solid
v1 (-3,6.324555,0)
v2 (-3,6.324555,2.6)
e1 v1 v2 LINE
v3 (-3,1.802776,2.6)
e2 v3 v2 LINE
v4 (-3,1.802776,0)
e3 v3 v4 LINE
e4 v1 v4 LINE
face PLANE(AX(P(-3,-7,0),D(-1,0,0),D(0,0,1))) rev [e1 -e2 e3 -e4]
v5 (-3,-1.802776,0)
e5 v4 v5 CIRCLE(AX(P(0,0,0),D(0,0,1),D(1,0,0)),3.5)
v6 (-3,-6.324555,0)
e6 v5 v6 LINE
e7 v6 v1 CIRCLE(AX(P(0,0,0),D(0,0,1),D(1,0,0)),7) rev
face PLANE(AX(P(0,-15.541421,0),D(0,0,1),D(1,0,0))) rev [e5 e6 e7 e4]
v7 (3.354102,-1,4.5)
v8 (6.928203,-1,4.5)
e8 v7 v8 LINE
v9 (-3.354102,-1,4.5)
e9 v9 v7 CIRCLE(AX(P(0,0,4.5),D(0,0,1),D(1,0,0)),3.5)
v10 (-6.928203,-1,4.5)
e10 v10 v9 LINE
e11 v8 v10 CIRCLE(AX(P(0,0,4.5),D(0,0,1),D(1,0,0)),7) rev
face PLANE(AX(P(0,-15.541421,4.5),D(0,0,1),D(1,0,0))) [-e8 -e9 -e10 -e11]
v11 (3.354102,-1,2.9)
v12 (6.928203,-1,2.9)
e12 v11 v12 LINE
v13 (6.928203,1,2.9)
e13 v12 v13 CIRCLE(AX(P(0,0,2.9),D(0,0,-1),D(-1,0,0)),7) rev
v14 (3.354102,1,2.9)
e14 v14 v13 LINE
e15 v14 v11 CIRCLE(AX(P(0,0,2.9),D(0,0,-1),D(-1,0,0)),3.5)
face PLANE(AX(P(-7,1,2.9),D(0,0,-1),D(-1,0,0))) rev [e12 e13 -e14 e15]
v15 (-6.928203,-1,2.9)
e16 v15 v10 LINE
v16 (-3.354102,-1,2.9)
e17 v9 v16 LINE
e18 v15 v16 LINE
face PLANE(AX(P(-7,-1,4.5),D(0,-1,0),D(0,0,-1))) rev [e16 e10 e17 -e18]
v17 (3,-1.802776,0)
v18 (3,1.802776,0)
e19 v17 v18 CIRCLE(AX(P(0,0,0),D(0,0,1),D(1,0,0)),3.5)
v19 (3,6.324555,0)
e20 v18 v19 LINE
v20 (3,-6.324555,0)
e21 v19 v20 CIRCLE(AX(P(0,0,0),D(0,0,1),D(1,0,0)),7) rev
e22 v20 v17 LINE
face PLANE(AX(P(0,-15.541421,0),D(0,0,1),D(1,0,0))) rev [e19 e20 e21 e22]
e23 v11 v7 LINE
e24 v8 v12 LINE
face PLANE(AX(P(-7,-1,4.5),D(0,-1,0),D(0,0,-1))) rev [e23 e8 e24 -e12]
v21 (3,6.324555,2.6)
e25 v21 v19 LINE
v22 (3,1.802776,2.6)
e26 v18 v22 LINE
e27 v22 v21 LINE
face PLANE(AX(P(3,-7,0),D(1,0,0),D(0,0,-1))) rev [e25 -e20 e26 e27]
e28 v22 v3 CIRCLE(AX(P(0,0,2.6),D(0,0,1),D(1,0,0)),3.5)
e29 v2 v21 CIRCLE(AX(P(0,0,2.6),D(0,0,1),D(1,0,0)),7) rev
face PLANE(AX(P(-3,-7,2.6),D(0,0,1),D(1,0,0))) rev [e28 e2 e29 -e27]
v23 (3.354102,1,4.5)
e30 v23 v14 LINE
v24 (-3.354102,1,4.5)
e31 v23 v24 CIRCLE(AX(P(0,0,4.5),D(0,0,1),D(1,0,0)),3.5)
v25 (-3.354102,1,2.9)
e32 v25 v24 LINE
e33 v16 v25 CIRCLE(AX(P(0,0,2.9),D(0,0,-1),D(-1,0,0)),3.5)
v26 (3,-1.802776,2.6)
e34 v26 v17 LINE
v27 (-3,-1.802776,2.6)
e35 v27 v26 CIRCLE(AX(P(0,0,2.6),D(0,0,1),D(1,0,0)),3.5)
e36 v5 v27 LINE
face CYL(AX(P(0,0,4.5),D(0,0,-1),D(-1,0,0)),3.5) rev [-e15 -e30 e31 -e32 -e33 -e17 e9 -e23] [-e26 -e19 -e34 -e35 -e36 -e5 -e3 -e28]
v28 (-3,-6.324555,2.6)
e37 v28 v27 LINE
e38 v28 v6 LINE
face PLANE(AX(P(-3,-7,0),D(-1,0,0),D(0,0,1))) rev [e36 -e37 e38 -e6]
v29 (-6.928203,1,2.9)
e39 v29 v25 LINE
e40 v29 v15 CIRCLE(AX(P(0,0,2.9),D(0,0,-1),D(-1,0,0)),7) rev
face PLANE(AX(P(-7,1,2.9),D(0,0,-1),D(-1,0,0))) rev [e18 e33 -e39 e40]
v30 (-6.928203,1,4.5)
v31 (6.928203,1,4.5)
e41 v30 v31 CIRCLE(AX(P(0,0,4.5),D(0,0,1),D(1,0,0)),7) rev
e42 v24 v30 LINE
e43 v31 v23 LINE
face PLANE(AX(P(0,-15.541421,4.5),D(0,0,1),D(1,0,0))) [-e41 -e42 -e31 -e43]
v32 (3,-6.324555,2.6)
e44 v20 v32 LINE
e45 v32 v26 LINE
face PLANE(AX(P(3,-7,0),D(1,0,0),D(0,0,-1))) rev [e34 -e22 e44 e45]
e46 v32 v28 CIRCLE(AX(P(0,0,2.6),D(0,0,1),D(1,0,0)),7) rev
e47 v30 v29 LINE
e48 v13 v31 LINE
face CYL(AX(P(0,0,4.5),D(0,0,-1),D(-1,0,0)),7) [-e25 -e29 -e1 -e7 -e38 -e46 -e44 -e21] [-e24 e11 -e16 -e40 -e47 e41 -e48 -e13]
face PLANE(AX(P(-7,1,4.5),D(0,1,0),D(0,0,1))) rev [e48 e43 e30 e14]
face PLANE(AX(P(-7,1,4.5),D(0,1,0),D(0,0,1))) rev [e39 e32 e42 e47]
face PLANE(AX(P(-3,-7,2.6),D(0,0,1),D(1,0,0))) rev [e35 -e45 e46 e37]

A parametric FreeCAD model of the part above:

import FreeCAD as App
import Part
import Sketcher

V = App.Vector

doc = App.newDocument("Part")
body = doc.addObject("PartDesign::Body", "Body")

# Sketch on XY plane
sketch1 = doc.addObject("Sketcher::SketchObject", "Sketch")
body.addObject(sketch1)
sketch1.AttachmentSupport = (doc.XY_Plane, [""])
sketch1.MapMode = "FlatFace"
sketch1.addGeometry([
    Part.Circle(V(0, 0, 0), V(0, 0, 1), 7),
    Part.Circle(V(0, 0, 0), V(0, 0, 1), 3.5),
], False)
sketch1.addConstraint([
    Sketcher.Constraint("Coincident", 0, 3, -1, 1),
    Sketcher.Constraint("Coincident", 1, 3, -1, 1),
    Sketcher.Constraint("Diameter", 0, 14.0),
    Sketcher.Constraint("Diameter", 1, 7.0),
])
pad1 = doc.addObject("PartDesign::Pad", "Pad")
body.addObject(pad1)
pad1.Profile = sketch1
pad1.Length = 4.5

# Sketch on XZ plane
sketch2 = doc.addObject("Sketcher::SketchObject", "Sketch001")
body.addObject(sketch2)
sketch2.AttachmentSupport = (doc.XZ_Plane, [""])
sketch2.MapMode = "FlatFace"
sketch2.addGeometry([
    Part.LineSegment(V(-3, 0, 0), V(-3, 2.6, 0)),
    Part.LineSegment(V(-3, 2.6, 0), V(3, 2.6, 0)),
    Part.LineSegment(V(3, 2.6, 0), V(3, 0, 0)),
    Part.LineSegment(V(3, 0, 0), V(-3, 0, 0)),
], False)
sketch2.addConstraint([
    Sketcher.Constraint("Coincident", 0, 2, 1, 1),
    Sketcher.Constraint("Coincident", 1, 2, 2, 1),
    Sketcher.Constraint("Coincident", 2, 2, 3, 1),
    Sketcher.Constraint("Coincident", 3, 2, 0, 1),
    Sketcher.Constraint("Vertical", 0),
    Sketcher.Constraint("Horizontal", 1),
    Sketcher.Constraint("Vertical", 2),
    Sketcher.Constraint("Horizontal", 3),
    Sketcher.Constraint("Symmetric", 2, 2, 3, 2, -1, 1),
    Sketcher.Constraint("DistanceX", 1, 1, 1, 2, 6.0),
    Sketcher.Constraint("DistanceY", 0, 1, 0, 2, 2.6),
])
pocket1 = doc.addObject("PartDesign::Pocket", "Pocket")
body.addObject(pocket1)
pocket1.Profile = sketch2
pocket1.Type = "ThroughAll"
pocket1.Midplane = True

# Sketch on YZ plane
sketch3 = doc.addObject("Sketcher::SketchObject", "Sketch002")
body.addObject(sketch3)
sketch3.AttachmentSupport = (doc.YZ_Plane, [""])
sketch3.MapMode = "FlatFace"
sketch3.addGeometry([
    Part.LineSegment(V(1, 4.5, 0), V(-1, 4.5, 0)),
    Part.LineSegment(V(-1, 4.5, 0), V(-1, 2.9, 0)),
    Part.LineSegment(V(-1, 2.9, 0), V(1, 2.9, 0)),
    Part.LineSegment(V(1, 2.9, 0), V(1, 4.5, 0)),
], False)
sketch3.addConstraint([
    Sketcher.Constraint("Coincident", 0, 2, 1, 1),
    Sketcher.Constraint("Coincident", 1, 2, 2, 1),
    Sketcher.Constraint("Coincident", 2, 2, 3, 1),
    Sketcher.Constraint("Coincident", 3, 2, 0, 1),
    Sketcher.Constraint("Horizontal", 0),
    Sketcher.Constraint("Vertical", 1),
    Sketcher.Constraint("Horizontal", 2),
    Sketcher.Constraint("Vertical", 3),
    Sketcher.Constraint("DistanceX", 0, 2, 0, 1, 2.0),
    Sketcher.Constraint("DistanceY", 1, 2, 1, 1, 1.6),
    Sketcher.Constraint("DistanceX", 0, 2, -1, 1, 1.0),
    Sketcher.Constraint("DistanceY", -1, 1, 0, 2, 4.5),
])
pocket2 = doc.addObject("PartDesign::Pocket", "Pocket001")
body.addObject(pocket2)
pocket2.Profile = sketch3
pocket2.Type = "ThroughAll"
pocket2.Midplane = True

doc.recompute()
